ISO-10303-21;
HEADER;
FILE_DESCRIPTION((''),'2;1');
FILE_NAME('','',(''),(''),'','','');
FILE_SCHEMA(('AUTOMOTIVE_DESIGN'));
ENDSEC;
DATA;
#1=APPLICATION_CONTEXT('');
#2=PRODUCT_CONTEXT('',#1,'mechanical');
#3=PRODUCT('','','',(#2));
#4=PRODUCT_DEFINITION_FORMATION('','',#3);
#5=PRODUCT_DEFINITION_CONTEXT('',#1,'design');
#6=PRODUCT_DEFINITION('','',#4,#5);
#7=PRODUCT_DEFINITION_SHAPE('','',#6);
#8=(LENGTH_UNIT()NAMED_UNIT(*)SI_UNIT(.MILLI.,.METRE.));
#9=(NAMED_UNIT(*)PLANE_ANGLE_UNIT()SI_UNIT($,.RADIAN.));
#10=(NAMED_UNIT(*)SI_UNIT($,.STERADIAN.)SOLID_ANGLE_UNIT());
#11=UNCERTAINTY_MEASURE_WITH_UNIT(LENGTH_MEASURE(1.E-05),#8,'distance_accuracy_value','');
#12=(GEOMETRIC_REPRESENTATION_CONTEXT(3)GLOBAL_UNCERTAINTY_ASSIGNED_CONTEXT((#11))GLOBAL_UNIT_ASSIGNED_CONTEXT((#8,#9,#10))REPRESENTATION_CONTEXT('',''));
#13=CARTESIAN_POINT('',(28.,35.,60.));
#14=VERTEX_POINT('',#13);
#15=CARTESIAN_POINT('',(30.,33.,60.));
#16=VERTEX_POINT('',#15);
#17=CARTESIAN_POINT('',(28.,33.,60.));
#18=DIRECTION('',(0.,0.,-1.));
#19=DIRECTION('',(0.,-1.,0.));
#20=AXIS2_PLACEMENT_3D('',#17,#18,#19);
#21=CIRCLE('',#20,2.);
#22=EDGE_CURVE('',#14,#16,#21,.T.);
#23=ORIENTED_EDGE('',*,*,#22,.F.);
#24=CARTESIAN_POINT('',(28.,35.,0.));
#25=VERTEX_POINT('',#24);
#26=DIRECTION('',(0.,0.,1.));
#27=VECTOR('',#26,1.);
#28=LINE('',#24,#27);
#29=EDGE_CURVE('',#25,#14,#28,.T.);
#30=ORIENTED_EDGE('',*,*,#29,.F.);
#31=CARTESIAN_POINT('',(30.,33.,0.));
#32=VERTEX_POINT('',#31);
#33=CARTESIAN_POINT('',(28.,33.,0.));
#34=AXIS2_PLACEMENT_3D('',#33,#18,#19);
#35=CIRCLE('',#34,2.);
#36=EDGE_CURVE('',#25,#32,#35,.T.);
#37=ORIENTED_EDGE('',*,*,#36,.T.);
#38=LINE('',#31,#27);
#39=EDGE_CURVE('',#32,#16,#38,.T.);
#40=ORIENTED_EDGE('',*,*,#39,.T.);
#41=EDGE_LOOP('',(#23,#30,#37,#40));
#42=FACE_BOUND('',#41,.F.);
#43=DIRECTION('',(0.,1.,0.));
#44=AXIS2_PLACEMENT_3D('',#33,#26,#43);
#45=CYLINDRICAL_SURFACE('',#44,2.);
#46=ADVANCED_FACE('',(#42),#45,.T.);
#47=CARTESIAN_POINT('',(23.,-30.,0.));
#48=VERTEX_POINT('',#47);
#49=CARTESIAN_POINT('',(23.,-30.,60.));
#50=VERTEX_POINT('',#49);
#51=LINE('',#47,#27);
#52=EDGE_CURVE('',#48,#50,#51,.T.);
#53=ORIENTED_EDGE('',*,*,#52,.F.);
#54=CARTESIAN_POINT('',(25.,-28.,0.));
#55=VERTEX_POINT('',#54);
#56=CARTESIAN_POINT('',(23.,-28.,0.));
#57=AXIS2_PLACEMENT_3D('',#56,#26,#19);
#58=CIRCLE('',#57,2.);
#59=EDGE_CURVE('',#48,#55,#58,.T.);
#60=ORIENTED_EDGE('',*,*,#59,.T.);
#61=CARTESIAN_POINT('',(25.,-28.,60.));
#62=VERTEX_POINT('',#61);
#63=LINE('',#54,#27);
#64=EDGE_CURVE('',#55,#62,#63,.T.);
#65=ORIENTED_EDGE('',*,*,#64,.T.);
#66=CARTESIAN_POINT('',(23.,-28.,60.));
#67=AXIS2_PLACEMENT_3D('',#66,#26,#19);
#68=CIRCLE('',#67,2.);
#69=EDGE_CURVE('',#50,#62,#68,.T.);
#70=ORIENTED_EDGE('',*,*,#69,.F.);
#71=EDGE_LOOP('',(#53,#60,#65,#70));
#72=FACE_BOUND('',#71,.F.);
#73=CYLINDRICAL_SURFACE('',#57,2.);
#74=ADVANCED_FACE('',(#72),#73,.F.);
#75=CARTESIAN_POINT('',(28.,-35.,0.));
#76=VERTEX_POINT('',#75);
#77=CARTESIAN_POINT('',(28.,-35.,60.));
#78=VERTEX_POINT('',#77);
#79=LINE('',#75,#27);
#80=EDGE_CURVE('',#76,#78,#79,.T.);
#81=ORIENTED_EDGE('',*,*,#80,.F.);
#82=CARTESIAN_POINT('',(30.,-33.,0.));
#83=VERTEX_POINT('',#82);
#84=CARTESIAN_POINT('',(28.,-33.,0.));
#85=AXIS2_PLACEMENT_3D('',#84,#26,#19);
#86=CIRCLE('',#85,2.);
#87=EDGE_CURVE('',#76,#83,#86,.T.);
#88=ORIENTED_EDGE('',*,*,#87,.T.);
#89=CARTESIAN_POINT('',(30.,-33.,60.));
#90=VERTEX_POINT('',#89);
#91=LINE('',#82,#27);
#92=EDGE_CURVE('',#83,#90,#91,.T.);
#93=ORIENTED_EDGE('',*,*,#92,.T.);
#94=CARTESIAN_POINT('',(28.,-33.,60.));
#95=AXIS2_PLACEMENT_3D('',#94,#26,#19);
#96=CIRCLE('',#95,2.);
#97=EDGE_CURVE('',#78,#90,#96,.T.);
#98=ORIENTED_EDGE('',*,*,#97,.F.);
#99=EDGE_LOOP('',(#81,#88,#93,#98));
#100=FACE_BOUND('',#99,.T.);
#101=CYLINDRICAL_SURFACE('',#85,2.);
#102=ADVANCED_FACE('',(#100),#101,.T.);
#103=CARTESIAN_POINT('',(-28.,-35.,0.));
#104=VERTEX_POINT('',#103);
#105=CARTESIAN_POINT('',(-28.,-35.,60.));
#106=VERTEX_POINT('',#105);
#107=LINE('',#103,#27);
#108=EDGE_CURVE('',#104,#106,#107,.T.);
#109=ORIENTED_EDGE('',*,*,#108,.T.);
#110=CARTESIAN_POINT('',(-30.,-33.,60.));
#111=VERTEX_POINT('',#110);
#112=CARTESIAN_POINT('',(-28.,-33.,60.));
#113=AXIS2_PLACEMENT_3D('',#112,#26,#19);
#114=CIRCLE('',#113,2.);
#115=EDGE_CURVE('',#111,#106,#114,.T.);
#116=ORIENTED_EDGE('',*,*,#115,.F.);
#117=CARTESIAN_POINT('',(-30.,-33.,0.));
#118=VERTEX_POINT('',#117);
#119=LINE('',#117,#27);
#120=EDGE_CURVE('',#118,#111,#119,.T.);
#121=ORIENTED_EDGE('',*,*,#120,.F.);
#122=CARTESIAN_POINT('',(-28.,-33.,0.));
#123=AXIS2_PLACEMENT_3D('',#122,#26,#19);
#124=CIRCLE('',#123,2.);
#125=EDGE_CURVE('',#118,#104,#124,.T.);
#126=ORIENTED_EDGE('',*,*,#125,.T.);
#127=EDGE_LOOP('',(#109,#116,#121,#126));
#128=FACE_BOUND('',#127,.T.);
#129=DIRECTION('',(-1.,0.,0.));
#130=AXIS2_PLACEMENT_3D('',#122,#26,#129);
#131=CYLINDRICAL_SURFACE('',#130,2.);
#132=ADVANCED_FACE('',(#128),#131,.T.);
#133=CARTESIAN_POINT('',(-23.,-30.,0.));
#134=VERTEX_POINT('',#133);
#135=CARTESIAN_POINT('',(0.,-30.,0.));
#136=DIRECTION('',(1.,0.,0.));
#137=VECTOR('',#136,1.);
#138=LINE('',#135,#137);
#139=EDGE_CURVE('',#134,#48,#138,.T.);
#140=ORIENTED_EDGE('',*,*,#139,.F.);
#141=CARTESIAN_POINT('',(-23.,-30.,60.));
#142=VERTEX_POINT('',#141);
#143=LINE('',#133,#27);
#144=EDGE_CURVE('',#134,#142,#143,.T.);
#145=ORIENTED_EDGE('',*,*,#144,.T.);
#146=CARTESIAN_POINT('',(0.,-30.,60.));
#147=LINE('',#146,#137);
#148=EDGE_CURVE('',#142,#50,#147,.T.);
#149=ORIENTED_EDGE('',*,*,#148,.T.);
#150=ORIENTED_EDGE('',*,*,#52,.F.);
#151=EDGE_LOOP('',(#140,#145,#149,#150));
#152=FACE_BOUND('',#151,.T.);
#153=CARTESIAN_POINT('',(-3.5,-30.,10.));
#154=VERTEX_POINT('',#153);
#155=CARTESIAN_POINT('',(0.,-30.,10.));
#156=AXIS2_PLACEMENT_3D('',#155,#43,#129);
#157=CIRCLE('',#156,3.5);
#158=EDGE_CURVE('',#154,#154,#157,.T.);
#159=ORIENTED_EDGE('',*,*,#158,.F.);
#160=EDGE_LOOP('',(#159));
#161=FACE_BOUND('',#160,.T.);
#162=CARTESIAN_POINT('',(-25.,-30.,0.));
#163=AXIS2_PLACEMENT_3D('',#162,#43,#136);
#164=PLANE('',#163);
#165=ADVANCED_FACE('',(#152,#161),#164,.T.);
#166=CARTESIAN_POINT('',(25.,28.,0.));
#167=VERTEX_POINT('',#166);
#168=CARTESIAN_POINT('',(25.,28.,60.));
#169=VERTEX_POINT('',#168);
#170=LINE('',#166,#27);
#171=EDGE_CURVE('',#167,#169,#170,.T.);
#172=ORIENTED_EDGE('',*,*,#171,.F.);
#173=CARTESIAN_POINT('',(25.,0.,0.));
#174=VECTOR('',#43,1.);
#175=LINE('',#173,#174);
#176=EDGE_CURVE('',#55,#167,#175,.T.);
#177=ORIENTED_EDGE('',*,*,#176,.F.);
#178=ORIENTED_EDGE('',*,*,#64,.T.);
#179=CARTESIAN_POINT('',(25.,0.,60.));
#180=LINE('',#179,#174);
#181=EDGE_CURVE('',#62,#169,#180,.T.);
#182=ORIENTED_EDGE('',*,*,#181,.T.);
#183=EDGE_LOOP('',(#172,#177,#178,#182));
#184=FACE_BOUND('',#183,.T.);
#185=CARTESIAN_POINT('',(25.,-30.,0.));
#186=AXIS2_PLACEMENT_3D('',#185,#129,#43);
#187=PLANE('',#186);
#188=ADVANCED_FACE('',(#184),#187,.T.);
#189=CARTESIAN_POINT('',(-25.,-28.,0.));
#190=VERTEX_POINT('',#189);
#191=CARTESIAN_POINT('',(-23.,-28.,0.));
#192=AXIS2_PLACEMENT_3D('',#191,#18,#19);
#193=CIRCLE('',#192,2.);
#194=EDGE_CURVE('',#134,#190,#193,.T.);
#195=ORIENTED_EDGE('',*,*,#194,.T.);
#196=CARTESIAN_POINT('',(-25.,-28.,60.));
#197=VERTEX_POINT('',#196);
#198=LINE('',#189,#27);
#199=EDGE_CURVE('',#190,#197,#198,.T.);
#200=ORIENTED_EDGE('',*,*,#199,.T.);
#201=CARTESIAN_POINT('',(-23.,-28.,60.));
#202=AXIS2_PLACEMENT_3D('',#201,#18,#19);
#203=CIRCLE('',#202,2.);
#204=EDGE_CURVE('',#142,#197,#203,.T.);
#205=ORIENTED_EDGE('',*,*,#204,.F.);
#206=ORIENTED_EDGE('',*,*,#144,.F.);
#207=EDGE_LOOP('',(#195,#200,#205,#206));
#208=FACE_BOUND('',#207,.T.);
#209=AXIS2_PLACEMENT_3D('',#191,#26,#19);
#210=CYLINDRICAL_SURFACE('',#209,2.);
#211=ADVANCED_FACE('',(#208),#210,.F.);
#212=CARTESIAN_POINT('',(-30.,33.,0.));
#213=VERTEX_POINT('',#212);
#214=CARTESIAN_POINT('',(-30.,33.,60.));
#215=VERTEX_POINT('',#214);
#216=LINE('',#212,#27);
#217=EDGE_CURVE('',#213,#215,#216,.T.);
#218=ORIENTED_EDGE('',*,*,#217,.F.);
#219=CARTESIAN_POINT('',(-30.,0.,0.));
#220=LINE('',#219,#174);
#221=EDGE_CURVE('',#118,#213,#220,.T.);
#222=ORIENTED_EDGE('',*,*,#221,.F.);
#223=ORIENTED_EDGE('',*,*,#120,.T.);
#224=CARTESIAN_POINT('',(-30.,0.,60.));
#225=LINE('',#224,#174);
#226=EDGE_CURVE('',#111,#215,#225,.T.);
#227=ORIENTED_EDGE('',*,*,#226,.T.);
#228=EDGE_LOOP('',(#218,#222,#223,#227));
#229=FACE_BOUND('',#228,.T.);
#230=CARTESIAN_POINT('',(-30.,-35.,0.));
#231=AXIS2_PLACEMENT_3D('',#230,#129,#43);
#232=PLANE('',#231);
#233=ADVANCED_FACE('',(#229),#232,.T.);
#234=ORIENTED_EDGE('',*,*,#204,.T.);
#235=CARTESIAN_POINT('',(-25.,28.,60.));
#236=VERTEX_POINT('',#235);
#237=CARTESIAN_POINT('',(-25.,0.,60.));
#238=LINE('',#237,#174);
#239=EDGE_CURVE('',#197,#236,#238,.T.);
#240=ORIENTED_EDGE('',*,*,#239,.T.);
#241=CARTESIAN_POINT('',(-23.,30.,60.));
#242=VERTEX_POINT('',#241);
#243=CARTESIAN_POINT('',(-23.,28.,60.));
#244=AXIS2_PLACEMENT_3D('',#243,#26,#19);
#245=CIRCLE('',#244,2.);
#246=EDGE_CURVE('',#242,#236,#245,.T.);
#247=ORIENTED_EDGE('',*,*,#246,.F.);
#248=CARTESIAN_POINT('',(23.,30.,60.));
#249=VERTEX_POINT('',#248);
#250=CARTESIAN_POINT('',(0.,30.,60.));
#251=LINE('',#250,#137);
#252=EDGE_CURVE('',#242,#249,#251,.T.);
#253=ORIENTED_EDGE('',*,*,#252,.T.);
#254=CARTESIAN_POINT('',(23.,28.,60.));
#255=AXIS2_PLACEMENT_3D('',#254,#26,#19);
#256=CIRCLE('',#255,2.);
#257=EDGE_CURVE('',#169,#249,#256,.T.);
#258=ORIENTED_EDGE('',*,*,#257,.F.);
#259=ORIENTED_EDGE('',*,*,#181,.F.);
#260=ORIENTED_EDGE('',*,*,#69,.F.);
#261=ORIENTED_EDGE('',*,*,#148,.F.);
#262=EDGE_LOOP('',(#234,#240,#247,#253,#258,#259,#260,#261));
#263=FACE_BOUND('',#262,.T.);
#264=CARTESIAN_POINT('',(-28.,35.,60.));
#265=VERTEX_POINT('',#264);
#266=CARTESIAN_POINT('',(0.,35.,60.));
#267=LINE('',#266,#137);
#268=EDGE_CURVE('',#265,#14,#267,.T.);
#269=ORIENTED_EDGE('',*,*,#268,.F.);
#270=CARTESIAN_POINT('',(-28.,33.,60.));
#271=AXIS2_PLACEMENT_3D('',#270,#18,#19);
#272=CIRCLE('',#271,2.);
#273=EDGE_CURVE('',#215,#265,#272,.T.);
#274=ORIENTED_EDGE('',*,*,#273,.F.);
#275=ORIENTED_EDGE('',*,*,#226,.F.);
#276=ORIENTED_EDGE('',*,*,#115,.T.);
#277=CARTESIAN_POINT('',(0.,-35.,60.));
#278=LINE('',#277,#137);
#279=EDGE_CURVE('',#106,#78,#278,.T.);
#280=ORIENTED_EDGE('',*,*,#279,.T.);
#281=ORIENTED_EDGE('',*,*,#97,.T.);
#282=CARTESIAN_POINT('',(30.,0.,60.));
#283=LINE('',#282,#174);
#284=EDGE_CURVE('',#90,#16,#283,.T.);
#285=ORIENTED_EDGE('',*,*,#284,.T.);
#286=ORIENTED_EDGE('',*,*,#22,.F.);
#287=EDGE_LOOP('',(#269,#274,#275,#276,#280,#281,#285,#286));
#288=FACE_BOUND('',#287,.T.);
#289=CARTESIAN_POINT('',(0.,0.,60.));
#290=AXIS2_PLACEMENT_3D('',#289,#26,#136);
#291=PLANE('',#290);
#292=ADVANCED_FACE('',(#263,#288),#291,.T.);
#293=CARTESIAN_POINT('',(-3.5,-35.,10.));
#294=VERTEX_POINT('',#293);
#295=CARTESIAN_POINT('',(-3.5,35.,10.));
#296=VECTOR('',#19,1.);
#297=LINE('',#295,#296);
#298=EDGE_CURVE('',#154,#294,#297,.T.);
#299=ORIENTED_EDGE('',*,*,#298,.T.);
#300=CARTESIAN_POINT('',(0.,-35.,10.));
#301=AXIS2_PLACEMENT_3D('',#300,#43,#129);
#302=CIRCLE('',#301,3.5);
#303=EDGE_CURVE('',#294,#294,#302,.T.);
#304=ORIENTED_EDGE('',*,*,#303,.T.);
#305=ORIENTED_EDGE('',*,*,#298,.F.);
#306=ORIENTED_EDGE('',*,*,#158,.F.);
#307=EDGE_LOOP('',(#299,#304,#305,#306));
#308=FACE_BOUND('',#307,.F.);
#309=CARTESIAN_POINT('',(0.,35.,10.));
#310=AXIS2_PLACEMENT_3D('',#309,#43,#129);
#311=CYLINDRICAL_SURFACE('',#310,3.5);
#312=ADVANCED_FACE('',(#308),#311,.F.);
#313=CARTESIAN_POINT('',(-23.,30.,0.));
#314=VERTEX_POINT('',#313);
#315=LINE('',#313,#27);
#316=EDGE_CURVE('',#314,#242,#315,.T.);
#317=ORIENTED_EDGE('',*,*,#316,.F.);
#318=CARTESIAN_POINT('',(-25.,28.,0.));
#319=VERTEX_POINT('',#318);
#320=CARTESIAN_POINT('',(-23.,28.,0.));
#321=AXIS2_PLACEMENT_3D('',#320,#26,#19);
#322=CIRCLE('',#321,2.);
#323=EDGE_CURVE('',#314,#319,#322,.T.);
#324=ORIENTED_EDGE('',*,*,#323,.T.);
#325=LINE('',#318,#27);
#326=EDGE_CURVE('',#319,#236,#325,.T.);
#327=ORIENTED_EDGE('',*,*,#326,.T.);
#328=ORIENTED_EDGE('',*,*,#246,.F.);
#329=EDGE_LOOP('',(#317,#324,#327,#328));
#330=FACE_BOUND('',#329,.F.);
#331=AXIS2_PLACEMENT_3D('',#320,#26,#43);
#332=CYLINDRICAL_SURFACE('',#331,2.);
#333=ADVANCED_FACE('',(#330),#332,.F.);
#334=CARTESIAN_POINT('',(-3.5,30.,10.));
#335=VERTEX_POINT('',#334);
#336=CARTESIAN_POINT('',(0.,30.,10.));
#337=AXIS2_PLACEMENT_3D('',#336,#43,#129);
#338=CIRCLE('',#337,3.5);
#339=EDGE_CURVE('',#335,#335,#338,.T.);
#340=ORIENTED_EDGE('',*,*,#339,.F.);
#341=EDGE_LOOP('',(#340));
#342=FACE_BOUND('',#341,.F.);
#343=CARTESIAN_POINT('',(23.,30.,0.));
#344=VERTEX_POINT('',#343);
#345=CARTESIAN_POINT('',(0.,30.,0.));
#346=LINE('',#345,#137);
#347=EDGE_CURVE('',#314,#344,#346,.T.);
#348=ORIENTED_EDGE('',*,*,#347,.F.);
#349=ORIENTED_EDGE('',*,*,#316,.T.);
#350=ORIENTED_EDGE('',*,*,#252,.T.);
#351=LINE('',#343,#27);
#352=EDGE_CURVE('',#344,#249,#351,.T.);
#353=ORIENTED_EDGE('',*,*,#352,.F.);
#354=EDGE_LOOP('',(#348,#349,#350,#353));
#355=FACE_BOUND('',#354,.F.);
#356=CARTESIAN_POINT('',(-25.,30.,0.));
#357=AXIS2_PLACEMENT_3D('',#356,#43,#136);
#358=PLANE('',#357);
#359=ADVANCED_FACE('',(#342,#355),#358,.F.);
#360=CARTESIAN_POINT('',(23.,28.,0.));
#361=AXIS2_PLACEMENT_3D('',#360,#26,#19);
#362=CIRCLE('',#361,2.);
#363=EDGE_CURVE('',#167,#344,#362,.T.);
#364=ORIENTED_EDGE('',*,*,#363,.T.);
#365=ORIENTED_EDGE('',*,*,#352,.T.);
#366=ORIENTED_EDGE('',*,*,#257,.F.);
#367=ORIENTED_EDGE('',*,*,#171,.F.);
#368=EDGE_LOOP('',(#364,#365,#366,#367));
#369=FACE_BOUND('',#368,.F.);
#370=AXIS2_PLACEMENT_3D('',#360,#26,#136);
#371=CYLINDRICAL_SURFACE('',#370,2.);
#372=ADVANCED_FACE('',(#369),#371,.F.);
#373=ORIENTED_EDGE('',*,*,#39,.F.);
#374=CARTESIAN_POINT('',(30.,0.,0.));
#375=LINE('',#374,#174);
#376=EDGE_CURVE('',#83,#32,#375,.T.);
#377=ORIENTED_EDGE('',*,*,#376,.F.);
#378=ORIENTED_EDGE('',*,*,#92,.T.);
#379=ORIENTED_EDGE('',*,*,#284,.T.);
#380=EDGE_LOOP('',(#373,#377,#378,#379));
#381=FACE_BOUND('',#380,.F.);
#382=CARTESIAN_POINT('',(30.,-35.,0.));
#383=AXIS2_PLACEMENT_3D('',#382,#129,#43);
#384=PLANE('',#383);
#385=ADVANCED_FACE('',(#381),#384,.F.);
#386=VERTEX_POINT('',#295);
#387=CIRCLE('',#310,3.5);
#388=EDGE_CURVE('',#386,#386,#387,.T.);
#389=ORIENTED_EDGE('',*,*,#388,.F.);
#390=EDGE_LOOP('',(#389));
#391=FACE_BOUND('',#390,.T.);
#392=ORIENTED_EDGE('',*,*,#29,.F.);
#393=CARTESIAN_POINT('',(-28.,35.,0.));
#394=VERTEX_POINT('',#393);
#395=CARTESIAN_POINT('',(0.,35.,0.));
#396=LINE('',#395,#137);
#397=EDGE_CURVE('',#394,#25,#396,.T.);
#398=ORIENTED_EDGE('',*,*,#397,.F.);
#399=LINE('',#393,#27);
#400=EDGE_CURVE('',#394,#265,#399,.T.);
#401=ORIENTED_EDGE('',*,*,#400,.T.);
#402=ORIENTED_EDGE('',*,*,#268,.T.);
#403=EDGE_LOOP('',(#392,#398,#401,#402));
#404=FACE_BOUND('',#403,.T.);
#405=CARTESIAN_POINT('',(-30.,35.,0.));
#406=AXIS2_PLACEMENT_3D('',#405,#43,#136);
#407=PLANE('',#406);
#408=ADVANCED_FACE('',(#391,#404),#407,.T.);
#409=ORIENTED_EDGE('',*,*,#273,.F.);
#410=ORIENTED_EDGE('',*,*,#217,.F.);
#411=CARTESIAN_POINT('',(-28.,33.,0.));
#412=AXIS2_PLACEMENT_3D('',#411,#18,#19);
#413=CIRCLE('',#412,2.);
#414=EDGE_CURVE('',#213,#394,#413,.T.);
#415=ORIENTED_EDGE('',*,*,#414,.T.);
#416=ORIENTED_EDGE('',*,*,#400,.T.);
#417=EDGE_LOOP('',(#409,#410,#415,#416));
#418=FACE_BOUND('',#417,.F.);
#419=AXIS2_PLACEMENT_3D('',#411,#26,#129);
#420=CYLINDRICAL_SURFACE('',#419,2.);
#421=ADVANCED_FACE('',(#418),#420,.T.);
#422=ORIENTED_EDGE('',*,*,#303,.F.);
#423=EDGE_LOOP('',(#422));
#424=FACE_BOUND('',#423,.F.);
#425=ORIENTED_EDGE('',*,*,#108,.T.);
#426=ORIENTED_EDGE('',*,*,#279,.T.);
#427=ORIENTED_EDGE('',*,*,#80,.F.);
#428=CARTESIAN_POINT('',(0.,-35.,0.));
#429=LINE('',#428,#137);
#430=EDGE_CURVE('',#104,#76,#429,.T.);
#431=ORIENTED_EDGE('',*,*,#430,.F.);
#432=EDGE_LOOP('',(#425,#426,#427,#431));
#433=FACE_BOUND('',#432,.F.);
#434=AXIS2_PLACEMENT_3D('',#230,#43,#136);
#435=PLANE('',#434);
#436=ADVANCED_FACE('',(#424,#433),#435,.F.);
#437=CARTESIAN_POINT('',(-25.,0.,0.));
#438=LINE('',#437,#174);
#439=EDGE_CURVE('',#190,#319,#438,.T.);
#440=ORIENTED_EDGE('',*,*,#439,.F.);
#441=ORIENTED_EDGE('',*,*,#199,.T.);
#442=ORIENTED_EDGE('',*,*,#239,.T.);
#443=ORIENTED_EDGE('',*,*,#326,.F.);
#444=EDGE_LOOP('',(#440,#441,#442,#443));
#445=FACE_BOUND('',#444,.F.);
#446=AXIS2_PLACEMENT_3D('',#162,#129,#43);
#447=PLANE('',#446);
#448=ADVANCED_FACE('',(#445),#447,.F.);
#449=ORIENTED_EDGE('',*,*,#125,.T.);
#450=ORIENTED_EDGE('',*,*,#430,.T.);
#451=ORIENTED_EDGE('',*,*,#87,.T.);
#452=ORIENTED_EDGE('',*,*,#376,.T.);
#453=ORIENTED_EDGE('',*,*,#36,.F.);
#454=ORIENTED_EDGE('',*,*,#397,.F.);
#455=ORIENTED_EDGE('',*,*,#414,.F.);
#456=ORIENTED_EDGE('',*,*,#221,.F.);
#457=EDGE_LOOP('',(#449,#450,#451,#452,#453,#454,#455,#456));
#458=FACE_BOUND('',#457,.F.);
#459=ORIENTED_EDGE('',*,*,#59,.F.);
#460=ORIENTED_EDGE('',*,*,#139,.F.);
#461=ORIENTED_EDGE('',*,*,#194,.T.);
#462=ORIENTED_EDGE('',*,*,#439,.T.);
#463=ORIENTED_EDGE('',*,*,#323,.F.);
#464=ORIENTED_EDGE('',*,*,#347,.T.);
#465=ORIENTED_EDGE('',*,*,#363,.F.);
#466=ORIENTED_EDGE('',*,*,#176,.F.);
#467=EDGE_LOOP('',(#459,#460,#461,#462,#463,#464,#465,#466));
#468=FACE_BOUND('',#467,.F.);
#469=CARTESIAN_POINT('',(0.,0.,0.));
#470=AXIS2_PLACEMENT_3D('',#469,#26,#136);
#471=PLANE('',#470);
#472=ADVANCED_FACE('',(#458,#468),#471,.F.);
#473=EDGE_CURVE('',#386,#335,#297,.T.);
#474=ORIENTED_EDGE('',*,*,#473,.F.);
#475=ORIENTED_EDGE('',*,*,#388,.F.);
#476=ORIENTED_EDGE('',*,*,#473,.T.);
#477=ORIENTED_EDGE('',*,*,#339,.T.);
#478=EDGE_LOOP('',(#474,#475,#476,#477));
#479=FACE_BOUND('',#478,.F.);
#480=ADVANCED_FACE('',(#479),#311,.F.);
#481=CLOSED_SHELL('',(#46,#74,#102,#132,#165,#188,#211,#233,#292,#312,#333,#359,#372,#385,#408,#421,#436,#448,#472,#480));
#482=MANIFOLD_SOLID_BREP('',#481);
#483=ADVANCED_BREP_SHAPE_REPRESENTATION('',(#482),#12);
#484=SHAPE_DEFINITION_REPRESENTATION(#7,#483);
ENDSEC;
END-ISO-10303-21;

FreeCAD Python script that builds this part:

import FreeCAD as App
import Part
import Sketcher
from FreeCAD import Vector
Q = App.Units.Quantity


def edges_at(feature, points):
    """Names of the edges that pass closest to the given points."""
    edges = feature.Shape.Edges
    near = lambda p: min(range(len(edges)), key=lambda i: edges[i].distToShape(Part.Vertex(*p))[0])
    return sorted({f"Edge{near(p) + 1}" for p in points})


def add_polygon(sketch, points):
    """Adds a closed chain of lines whose ends are joined by coincident constraints."""
    first, n = sketch.GeometryCount, len(points)
    for a, b in zip(points, points[1:] + points[:1]):
        sketch.addGeometry(Part.LineSegment(App.Vector(*a, 0), App.Vector(*b, 0)), False)
    for i in range(n):
        sketch.addConstraint(Sketcher.Constraint("Coincident", first + i, 2, first + (i + 1) % n, 1))

doc = App.newDocument("Part")
params = doc.addObject("Spreadsheet::Sheet", "Params")
for row, (alias, value) in enumerate([
    ("sketch1_width", "60 mm"),
    ("sketch1_width2", "50 mm"),
    ("sketch1_height", "70 mm"),
    ("pad1_length", "60 mm"),
    ("fillet_radius", "2 mm"),
    ("sketch2_diameter", "7 mm"),
    ("pocket1_length", "70 mm"),
], start=1):
    params.set(f"A{row}", alias)
    params.set(f"B{row}", "=" + value)
    params.setAlias(f"B{row}", alias)

body = doc.addObject("PartDesign::Body", "Body")

sketch1 = body.newObject("Sketcher::SketchObject", "Sketch")
sketch1.AttachmentSupport = (doc.getObject("XY_Plane"), [""])
sketch1.MapMode = "FlatFace"
add_polygon(sketch1, [(-30, 35), (-30, -35), (30, -35), (30, 35)])
add_polygon(sketch1, [(25, -30), (-25, -30), (-25, 30), (25, 30)])
sketch1.addConstraint(Sketcher.Constraint("Vertical", 0))
sketch1.addConstraint(Sketcher.Constraint("Horizontal", 1))
sketch1.addConstraint(Sketcher.Constraint("Vertical", 2))
sketch1.addConstraint(Sketcher.Constraint("Horizontal", 3))
sketch1.addConstraint(Sketcher.Constraint("Horizontal", 4))
sketch1.addConstraint(Sketcher.Constraint("Vertical", 5))
sketch1.addConstraint(Sketcher.Constraint("Horizontal", 6))
sketch1.addConstraint(Sketcher.Constraint("Vertical", 7))
sketch1.addConstraint(Sketcher.Constraint("Symmetric", 0, 2, 2, 2, -1, 1))
sketch1.addConstraint(Sketcher.Constraint("Symmetric", 4, 2, 6, 2, -1, 1))
sketch1.addConstraint(Sketcher.Constraint("Equal", 3, 5))
sketch1.addConstraint(Sketcher.Constraint("DistanceX", 1, 1, 1, 2, Q("60 mm")))
sketch1.addConstraint(Sketcher.Constraint("DistanceX", 4, 2, 4, 1, Q("50 mm")))
sketch1.addConstraint(Sketcher.Constraint("DistanceY", 0, 2, 0, 1, Q("70 mm")))
sketch1.setExpression("Constraints[19]", "Params.sketch1_width")
sketch1.setExpression("Constraints[20]", "Params.sketch1_width2")
sketch1.setExpression("Constraints[21]", "Params.sketch1_height")
pad1 = body.newObject("PartDesign::Pad", "Pad")
pad1.Profile = sketch1
pad1.setExpression("Length", "Params.pad1_length")
doc.recompute()

fillet = body.newObject("PartDesign::Fillet", "Fillet")
fillet.Base = (pad1, edges_at(pad1, [
    (-30, 35, 30),
    (30, 35, 30),
    (30, -35, 30),
    (-30, -35, 30),
    (-25, 30, 30),
    (25, 30, 30),
    (-25, -30, 30),
    (25, -30, 30),
]))
fillet.setExpression("Radius", "Params.fillet_radius")

sketch2 = body.newObject("Sketcher::SketchObject", "Sketch001")
sketch2.AttachmentSupport = (doc.getObject("XZ_Plane"), [""])
sketch2.MapMode = "FlatFace"
sketch2.AttachmentOffset = App.Placement(Vector(0, 0, -35), App.Rotation())
sketch2.addGeometry(Part.Circle(Vector(0, 10, 0), Vector(0, 0, 1), 3.5), False)
sketch2.addConstraint(Sketcher.Constraint("PointOnObject", 0, 3, -2))
sketch2.addConstraint(Sketcher.Constraint("Diameter", 0, Q("7 mm")))
sketch2.addConstraint(Sketcher.Constraint("DistanceY", -1, 1, 0, 3, Q("10 mm")))
sketch2.setExpression("Constraints[1]", "Params.sketch2_diameter")
pocket1 = body.newObject("PartDesign::Pocket", "Pocket")
pocket1.Profile = sketch2
pocket1.setExpression("Length", "Params.pocket1_length")
pocket1.Reversed = True

doc.recompute()
